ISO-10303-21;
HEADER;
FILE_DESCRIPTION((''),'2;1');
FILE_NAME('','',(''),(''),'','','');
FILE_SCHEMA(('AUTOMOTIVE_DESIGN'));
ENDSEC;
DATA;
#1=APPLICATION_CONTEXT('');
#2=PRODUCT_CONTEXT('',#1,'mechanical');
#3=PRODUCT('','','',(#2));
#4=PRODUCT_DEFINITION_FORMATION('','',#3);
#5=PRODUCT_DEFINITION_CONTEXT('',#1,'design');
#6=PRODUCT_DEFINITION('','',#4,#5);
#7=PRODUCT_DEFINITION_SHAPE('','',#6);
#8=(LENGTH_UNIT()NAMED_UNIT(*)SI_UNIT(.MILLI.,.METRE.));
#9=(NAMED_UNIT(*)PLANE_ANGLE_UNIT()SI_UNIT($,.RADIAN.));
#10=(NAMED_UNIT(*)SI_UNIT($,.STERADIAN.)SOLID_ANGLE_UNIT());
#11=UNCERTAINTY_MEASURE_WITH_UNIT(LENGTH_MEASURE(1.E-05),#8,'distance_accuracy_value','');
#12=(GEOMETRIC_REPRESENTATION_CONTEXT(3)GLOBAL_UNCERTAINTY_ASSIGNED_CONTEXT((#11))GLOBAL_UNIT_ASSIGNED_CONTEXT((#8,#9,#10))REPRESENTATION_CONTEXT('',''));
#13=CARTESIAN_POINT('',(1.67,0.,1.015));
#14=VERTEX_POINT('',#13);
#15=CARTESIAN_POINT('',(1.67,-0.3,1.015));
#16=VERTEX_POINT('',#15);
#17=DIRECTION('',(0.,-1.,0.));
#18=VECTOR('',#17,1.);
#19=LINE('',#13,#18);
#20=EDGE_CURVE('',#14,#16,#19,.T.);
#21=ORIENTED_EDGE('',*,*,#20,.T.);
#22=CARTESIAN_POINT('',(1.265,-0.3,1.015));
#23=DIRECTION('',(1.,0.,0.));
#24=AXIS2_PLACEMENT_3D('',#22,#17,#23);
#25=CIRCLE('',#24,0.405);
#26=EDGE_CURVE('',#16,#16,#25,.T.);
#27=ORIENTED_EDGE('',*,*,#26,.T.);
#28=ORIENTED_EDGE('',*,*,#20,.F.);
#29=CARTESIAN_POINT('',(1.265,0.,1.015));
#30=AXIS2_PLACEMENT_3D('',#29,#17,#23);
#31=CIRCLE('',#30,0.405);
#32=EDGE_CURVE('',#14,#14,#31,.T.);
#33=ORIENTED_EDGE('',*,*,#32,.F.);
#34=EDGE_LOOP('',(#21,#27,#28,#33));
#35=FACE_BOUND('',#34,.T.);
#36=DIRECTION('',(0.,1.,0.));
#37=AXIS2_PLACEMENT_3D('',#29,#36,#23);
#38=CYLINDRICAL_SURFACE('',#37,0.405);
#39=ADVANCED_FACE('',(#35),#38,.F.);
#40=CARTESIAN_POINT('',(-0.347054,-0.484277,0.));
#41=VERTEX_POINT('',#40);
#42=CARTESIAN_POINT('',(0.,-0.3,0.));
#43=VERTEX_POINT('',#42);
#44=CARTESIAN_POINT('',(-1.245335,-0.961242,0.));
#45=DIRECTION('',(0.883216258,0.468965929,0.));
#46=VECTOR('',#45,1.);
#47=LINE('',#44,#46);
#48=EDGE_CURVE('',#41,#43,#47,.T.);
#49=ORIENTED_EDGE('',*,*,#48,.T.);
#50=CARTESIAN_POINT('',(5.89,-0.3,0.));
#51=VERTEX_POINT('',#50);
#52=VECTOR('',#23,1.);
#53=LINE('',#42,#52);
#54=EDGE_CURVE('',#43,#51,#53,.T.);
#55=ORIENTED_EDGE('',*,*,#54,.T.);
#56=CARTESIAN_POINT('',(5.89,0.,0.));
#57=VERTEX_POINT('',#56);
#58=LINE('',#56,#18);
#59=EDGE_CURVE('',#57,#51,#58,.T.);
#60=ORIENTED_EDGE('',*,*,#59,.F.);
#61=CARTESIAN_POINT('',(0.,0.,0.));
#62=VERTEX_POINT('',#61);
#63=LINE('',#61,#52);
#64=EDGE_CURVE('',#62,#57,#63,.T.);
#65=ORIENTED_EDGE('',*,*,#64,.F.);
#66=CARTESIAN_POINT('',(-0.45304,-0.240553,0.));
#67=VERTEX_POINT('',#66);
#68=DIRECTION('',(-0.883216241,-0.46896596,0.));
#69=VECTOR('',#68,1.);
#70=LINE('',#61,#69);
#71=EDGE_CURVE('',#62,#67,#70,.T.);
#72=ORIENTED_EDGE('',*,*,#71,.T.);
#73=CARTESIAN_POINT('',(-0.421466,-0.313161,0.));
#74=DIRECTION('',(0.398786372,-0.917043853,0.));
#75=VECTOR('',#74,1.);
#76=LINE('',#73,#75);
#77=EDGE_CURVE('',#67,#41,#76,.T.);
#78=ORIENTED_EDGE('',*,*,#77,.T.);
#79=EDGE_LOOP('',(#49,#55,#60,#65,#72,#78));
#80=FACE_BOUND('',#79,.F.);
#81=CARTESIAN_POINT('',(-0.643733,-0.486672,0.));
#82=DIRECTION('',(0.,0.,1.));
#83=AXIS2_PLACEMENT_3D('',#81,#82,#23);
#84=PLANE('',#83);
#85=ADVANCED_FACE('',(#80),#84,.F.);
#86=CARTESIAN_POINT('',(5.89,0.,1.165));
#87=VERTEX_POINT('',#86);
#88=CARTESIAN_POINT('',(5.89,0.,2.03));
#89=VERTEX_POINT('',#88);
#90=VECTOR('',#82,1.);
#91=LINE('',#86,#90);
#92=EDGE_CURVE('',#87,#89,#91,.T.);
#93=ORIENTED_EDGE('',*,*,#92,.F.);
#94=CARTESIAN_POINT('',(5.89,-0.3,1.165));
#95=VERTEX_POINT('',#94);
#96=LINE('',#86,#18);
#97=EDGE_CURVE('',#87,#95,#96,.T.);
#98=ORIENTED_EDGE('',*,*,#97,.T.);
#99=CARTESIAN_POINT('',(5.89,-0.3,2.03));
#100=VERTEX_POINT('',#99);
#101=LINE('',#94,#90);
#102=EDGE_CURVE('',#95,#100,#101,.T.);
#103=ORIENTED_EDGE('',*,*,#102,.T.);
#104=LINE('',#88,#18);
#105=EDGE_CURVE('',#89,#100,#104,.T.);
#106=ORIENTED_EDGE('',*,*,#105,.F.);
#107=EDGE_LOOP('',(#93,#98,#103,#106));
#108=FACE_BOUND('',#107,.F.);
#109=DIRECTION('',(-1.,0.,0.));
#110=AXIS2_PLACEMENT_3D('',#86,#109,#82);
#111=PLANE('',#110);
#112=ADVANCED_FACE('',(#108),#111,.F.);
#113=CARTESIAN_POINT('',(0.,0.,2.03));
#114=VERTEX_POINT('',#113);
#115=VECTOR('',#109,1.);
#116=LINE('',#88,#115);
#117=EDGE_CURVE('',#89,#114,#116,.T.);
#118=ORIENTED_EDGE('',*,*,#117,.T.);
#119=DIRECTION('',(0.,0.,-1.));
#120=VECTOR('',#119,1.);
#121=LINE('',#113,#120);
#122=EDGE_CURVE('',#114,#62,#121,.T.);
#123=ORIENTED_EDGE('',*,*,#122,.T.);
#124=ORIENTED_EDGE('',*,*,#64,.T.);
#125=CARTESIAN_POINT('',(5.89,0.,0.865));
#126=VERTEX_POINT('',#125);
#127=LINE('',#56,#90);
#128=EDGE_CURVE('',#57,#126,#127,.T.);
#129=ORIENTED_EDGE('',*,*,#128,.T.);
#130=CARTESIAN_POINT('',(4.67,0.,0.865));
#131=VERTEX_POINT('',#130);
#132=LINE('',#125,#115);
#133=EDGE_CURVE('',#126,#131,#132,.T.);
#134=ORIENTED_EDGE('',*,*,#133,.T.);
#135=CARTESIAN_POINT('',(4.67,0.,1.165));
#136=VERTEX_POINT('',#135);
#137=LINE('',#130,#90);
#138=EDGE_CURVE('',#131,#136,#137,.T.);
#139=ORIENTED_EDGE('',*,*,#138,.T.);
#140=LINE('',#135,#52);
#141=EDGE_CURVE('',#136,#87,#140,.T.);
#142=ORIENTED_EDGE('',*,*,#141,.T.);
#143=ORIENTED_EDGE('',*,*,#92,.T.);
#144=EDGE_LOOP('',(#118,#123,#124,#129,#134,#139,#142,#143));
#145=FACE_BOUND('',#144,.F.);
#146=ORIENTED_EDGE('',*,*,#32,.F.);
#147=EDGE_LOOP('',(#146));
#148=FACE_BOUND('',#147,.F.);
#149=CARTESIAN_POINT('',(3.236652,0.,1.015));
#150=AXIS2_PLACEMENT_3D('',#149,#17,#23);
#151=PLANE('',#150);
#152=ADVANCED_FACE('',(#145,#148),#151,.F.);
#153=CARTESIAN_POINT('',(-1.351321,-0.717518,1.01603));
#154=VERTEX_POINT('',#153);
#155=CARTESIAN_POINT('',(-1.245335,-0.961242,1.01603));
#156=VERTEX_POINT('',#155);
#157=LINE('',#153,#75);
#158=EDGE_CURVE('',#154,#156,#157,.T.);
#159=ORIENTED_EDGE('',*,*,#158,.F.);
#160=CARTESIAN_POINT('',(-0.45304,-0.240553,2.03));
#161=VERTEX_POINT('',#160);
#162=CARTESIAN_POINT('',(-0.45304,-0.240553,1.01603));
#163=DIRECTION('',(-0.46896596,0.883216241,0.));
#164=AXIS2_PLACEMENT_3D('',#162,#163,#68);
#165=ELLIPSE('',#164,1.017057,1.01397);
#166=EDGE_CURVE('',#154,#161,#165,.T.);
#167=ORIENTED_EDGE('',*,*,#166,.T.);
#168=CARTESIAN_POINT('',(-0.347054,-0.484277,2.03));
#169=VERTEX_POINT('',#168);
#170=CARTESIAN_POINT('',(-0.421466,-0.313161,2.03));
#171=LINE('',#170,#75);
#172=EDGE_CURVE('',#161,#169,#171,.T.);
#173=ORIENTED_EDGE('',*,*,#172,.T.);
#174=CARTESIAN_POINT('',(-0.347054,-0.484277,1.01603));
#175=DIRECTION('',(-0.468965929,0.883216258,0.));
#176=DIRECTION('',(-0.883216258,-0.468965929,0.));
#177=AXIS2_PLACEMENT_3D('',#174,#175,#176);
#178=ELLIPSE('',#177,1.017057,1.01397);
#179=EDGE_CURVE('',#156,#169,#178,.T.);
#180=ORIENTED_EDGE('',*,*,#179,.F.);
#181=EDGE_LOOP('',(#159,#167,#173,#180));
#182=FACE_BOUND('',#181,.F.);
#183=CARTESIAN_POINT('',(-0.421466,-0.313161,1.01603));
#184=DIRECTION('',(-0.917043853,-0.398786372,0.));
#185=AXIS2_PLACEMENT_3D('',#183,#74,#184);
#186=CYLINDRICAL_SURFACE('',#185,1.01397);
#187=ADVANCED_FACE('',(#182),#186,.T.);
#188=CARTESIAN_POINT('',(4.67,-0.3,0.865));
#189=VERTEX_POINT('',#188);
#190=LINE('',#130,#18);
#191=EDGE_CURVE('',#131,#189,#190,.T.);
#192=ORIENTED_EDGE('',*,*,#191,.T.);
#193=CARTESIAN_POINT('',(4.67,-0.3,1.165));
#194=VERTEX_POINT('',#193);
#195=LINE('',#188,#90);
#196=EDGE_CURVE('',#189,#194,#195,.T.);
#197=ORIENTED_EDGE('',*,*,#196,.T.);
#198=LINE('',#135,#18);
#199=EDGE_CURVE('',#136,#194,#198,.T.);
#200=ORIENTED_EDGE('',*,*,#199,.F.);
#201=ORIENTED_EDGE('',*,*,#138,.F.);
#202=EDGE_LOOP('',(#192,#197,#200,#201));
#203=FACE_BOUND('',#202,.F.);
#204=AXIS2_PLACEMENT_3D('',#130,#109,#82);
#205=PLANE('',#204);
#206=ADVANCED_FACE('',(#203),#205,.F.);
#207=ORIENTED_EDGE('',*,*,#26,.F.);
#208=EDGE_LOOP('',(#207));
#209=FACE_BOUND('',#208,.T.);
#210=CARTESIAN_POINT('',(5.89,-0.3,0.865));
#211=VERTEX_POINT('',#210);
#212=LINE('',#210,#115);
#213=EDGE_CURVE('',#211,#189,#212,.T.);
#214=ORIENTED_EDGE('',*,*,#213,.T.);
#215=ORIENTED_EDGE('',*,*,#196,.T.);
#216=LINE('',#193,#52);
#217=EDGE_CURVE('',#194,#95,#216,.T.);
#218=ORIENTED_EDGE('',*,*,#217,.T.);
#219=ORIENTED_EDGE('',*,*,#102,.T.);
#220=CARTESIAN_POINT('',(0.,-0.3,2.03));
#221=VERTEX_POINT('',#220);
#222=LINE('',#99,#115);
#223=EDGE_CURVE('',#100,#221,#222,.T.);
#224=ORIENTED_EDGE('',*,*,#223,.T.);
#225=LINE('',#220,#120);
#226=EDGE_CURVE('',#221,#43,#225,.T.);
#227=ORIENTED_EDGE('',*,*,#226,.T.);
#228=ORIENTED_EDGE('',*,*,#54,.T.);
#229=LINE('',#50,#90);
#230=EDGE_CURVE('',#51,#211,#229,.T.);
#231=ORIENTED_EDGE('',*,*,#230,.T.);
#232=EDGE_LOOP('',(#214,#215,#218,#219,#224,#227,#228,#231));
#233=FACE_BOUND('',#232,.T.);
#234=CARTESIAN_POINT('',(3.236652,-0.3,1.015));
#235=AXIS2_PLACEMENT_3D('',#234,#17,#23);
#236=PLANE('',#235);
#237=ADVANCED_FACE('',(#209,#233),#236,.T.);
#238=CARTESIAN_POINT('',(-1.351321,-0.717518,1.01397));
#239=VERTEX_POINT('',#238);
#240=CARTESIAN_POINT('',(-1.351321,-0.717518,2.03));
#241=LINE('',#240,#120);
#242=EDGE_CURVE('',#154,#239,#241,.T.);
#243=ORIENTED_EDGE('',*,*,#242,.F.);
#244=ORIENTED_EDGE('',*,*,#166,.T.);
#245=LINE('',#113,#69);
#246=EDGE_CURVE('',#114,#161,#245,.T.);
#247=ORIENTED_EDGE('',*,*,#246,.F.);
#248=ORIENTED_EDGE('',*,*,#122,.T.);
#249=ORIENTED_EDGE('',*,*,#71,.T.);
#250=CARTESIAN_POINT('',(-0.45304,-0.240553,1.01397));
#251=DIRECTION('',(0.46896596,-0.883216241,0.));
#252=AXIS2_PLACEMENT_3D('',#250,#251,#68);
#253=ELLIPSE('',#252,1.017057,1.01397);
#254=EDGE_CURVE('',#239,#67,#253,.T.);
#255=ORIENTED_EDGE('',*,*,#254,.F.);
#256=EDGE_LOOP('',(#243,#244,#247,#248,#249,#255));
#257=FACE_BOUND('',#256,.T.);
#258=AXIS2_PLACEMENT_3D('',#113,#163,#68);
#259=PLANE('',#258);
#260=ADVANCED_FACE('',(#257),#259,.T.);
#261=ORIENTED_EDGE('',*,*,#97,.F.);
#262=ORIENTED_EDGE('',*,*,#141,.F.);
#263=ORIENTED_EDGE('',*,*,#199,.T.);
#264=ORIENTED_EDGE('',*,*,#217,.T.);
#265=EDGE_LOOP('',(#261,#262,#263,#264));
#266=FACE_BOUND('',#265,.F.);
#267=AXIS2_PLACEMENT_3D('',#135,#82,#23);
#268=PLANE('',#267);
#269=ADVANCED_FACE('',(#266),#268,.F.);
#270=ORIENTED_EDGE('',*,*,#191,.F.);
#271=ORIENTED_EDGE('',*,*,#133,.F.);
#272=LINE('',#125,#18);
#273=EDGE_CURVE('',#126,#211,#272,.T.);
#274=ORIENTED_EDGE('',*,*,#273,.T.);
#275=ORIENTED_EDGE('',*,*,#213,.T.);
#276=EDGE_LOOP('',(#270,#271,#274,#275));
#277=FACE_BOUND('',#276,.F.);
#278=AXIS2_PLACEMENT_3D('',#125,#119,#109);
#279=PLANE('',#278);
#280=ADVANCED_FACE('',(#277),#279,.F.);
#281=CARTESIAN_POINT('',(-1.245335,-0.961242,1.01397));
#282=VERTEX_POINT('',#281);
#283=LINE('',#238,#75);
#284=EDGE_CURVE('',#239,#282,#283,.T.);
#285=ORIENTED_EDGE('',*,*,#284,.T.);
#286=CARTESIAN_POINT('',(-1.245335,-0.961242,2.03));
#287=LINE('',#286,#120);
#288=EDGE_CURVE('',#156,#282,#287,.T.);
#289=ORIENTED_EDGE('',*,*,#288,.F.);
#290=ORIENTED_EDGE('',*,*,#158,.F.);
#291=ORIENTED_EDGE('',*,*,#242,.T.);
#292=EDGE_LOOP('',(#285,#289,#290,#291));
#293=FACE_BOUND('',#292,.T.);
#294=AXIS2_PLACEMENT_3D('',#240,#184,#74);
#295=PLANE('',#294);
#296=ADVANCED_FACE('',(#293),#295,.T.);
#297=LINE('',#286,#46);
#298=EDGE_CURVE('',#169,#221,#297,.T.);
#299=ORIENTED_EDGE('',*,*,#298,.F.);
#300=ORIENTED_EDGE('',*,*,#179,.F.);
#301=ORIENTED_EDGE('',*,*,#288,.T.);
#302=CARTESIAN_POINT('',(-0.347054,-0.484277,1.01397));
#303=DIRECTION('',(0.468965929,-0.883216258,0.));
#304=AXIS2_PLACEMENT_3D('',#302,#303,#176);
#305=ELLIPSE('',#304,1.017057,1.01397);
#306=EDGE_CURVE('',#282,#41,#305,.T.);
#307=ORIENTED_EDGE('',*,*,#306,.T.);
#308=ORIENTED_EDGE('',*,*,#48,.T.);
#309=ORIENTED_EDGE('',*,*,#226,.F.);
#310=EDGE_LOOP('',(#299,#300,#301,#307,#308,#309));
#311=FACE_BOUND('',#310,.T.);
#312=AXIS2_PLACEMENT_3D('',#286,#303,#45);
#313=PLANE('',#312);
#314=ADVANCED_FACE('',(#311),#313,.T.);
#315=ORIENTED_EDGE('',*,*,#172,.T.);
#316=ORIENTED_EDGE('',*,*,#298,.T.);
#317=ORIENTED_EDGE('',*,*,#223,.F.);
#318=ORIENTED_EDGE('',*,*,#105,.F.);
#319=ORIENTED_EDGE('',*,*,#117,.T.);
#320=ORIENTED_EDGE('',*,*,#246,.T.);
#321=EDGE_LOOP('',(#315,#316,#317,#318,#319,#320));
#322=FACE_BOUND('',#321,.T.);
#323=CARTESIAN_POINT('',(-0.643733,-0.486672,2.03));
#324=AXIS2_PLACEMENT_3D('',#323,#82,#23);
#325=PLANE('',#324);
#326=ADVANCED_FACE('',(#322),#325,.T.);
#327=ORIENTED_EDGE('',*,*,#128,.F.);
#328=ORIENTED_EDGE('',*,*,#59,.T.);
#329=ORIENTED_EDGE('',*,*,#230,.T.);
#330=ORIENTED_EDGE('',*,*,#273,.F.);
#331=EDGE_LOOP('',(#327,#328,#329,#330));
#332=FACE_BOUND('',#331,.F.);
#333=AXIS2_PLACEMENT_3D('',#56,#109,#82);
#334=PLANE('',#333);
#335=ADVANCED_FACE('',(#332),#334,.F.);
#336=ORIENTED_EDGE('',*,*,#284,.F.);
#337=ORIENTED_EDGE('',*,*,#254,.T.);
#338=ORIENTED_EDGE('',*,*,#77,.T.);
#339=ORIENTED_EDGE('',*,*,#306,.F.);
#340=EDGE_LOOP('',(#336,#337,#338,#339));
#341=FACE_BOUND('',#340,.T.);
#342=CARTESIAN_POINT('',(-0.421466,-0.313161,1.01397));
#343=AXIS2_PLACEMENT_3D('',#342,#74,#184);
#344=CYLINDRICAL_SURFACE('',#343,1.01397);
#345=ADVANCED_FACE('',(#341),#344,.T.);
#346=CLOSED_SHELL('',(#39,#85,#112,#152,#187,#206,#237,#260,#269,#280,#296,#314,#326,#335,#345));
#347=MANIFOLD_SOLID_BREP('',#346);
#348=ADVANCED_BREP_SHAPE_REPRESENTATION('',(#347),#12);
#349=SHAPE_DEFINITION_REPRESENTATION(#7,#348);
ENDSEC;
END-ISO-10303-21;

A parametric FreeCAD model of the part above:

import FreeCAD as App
import Part
import Sketcher
Q = App.Units.Quantity


def edges_at(feature, points):
    """Names of the edges that pass closest to the given points."""
    edges = feature.Shape.Edges
    near = lambda p: min(range(len(edges)), key=lambda i: edges[i].distToShape(Part.Vertex(*p))[0])
    return sorted({f"Edge{near(p) + 1}" for p in points})

doc = App.newDocument("Part")
params = doc.addObject("Spreadsheet::Sheet", "Params")
for row, (alias, value) in enumerate([
    ("sketch1_diameter", "0.81 mm"),
    ("sketch1_height", "0.3 mm"),
    ("sketch1_width", "5.89 mm"),
    ("sketch1_width2", "1.22 mm"),
    ("sketch1_height2", "2.03 mm"),
    ("pad1_length", "0.3 mm"),
    ("sketch2_height", "0.3 mm"),
    ("sketch2_length", "1.53 mm"),
    ("sketch2_length2", "1.41 mm"),
    ("pad2_length", "2.03 mm"),
    ("fillet_radius", "1.01397 mm"),
], start=1):
    params.set(f"A{row}", alias)
    params.set(f"B{row}", "=" + value)
    params.setAlias(f"B{row}", alias)

body = doc.addObject("PartDesign::Body", "Body")

# Sketch on XZ plane
sketch1 = body.newObject("Sketcher::SketchObject", "Sketch")
sketch1.AttachmentSupport = (doc.getObject("XZ_Plane"), [""])
sketch1.MapMode = "FlatFace"
sketch1.addGeometry(Part.LineSegment(App.Vector(0, 2.03, 0), App.Vector(0, 0, 0)), False)
sketch1.addGeometry(Part.LineSegment(App.Vector(0, 0, 0), App.Vector(5.89, 0, 0)), False)
sketch1.addGeometry(Part.LineSegment(App.Vector(5.89, 0, 0), App.Vector(5.89, 0.86, 0)), False)
sketch1.addGeometry(Part.LineSegment(App.Vector(5.89, 0.86, 0), App.Vector(4.67, 0.86, 0)), False)
sketch1.addGeometry(Part.LineSegment(App.Vector(4.67, 0.86, 0), App.Vector(4.67, 1.17, 0)), False)
sketch1.addGeometry(Part.LineSegment(App.Vector(4.67, 1.17, 0), App.Vector(5.89, 1.17, 0)), False)
sketch1.addGeometry(Part.LineSegment(App.Vector(5.89, 1.17, 0), App.Vector(5.89, 2.03, 0)), False)
sketch1.addGeometry(Part.LineSegment(App.Vector(5.89, 2.03, 0), App.Vector(0, 2.03, 0)), False)
sketch1.addGeometry(Part.Circle(App.Vector(1.26, 1.01, 0), App.Vector(0, 0, 1), 0.41), False)
sketch1.addConstraint(Sketcher.Constraint("Coincident", 0, 2, 1, 1))
sketch1.addConstraint(Sketcher.Constraint("Coincident", 1, 2, 2, 1))
sketch1.addConstraint(Sketcher.Constraint("Coincident", 2, 2, 3, 1))
sketch1.addConstraint(Sketcher.Constraint("Coincident", 3, 2, 4, 1))
sketch1.addConstraint(Sketcher.Constraint("Coincident", 4, 2, 5, 1))
sketch1.addConstraint(Sketcher.Constraint("Coincident", 5, 2, 6, 1))
sketch1.addConstraint(Sketcher.Constraint("Coincident", 6, 2, 7, 1))
sketch1.addConstraint(Sketcher.Constraint("Coincident", 7, 2, 0, 1))
sketch1.addConstraint(Sketcher.Constraint("Vertical", 0))
sketch1.addConstraint(Sketcher.Constraint("Horizontal", 1))
sketch1.addConstraint(Sketcher.Constraint("Vertical", 2))
sketch1.addConstraint(Sketcher.Constraint("Horizontal", 3))
sketch1.addConstraint(Sketcher.Constraint("Vertical", 4))
sketch1.addConstraint(Sketcher.Constraint("Horizontal", 5))
sketch1.addConstraint(Sketcher.Constraint("Vertical", 6))
sketch1.addConstraint(Sketcher.Constraint("Horizontal", 7))
sketch1.addConstraint(Sketcher.Constraint("Coincident", 0, 2, -1, 1))
sketch1.addConstraint(Sketcher.Constraint("Vertical", 2, 2, 5, 2))
sketch1.addConstraint(Sketcher.Constraint("Equal", 2, 6))
sketch1.addConstraint(Sketcher.Constraint("Diameter", 8, Q("0.81 mm")))
sketch1.addConstraint(Sketcher.Constraint("DistanceY", 4, 1, 4, 2, Q("0.3 mm")))
sketch1.addConstraint(Sketcher.Constraint("DistanceX", 1, 1, 1, 2, Q("5.89 mm")))
sketch1.addConstraint(Sketcher.Constraint("DistanceX", 3, 2, 3, 1, Q("1.22 mm")))
sketch1.addConstraint(Sketcher.Constraint("DistanceY", 0, 2, 0, 1, Q("2.03 mm")))
sketch1.addConstraint(Sketcher.Constraint("DistanceY", 2, 2, 8, 3, Q("0.15 mm")))
sketch1.addConstraint(Sketcher.Constraint("DistanceX", -1, 1, 8, 3, Q("1.265 mm")))
sketch1.setExpression("Constraints[19]", "Params.sketch1_diameter")
sketch1.setExpression("Constraints[20]", "Params.sketch1_height")
sketch1.setExpression("Constraints[21]", "Params.sketch1_width")
sketch1.setExpression("Constraints[22]", "Params.sketch1_width2")
sketch1.setExpression("Constraints[23]", "Params.sketch1_height2")
pad1 = body.newObject("PartDesign::Pad", "Pad")
pad1.Profile = sketch1
pad1.setExpression("Length", "Params.pad1_length")

# Sketch on XY plane
sketch2 = body.newObject("Sketcher::SketchObject", "Sketch001")
sketch2.AttachmentSupport = (doc.getObject("XY_Plane"), [""])
sketch2.MapMode = "FlatFace"
sketch2.AttachmentOffset = App.Placement(App.Vector(0, 0, 2.03), App.Rotation())
sketch2.addGeometry(Part.LineSegment(App.Vector(0, -0.3, 0), App.Vector(0, 0, 0)), False)
sketch2.addGeometry(Part.LineSegment(App.Vector(0, 0, 0), App.Vector(-1.35, -0.72, 0)), False)
sketch2.addGeometry(Part.LineSegment(App.Vector(-1.35, -0.72, 0), App.Vector(-1.25, -0.96, 0)), False)
sketch2.addGeometry(Part.LineSegment(App.Vector(-1.25, -0.96, 0), App.Vector(0, -0.3, 0)), False)
sketch2.addConstraint(Sketcher.Constraint("Coincident", 0, 2, 1, 1))
sketch2.addConstraint(Sketcher.Constraint("Coincident", 1, 2, 2, 1))
sketch2.addConstraint(Sketcher.Constraint("Coincident", 2, 2, 3, 1))
sketch2.addConstraint(Sketcher.Constraint("Coincident", 3, 2, 0, 1))
sketch2.addConstraint(Sketcher.Constraint("Vertical", 0))
sketch2.addConstraint(Sketcher.Constraint("Coincident", 0, 2, -1, 1))
sketch2.addConstraint(Sketcher.Constraint("Parallel", 1, 3))
sketch2.addConstraint(Sketcher.Constraint("DistanceY", 0, 1, 0, 2, Q("0.3 mm")))
sketch2.addConstraint(Sketcher.Constraint("Distance", 1, Q("1.53 mm")))
sketch2.addConstraint(Sketcher.Constraint("Distance", 3, Q("1.41 mm")))
sketch2.addConstraint(Sketcher.Constraint("Distance", 2, Q("0.265771 mm")))
sketch2.setExpression("Constraints[7]", "Params.sketch2_height")
sketch2.setExpression("Constraints[8]", "Params.sketch2_length")
sketch2.setExpression("Constraints[9]", "Params.sketch2_length2")
pad2 = body.newObject("PartDesign::Pad", "Pad001")
pad2.Profile = sketch2
pad2.setExpression("Length", "Params.pad2_length")
pad2.Reversed = True
doc.recompute()

fillet = body.newObject("PartDesign::Fillet", "Fillet")
fillet.Base = (pad2, edges_at(pad2, [(-1.298, -0.839, 0), (-1.298, -0.839, 2.03)]))
fillet.setExpression("Radius", "Params.fillet_radius")

doc.recompute()
